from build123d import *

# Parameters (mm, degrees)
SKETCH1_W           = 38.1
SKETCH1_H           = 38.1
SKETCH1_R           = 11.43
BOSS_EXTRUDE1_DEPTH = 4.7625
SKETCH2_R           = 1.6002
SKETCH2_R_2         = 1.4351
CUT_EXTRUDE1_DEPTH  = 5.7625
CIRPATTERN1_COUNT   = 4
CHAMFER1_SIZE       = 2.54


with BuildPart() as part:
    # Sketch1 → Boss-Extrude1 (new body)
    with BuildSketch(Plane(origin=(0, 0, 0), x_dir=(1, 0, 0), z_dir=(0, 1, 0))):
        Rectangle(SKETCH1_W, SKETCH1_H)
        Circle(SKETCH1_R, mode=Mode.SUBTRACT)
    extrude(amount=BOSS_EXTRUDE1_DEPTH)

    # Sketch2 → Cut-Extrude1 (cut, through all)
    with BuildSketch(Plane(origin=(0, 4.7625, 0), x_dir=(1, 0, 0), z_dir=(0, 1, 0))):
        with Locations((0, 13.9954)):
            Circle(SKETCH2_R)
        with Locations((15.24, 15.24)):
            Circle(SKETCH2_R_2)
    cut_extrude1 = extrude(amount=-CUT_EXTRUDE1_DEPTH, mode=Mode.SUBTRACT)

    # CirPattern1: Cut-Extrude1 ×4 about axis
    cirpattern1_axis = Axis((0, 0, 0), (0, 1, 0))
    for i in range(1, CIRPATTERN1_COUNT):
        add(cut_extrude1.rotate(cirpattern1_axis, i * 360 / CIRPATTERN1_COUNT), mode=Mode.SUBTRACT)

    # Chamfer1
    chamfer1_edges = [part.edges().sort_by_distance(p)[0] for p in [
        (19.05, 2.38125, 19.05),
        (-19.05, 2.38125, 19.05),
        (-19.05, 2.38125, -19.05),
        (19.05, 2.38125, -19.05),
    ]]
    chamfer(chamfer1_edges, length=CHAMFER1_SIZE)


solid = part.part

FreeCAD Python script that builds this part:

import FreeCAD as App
import Part
import Sketcher
Q = App.Units.Quantity


def edges_at(feature, points):
    """Names of the edges that pass closest to the given points."""
    edges = feature.Shape.Edges
    near = lambda p: min(range(len(edges)), key=lambda i: edges[i].distToShape(Part.Vertex(*p))[0])
    return sorted({f"Edge{near(p) + 1}" for p in points})


def add_polygon(sketch, points):
    """Adds a closed chain of lines whose ends are joined by coincident constraints."""
    first, n = sketch.GeometryCount, len(points)
    for a, b in zip(points, points[1:] + points[:1]):
        sketch.addGeometry(Part.LineSegment(App.Vector(*a, 0), App.Vector(*b, 0)), False)
    for i in range(n):
        sketch.addConstraint(Sketcher.Constraint("Coincident", first + i, 2, first + (i + 1) % n, 1))

doc = App.newDocument("Part")
body = doc.addObject("PartDesign::Body", "Body")

sketch1 = body.newObject("Sketcher::SketchObject", "Sketch")
sketch1.AttachmentSupport = (doc.getObject("XZ_Plane"), [""])
sketch1.MapMode = "FlatFace"
add_polygon(sketch1, [(-19, -19), (-19, 19), (19, 19), (19, -19)])
sketch1.addGeometry(Part.Circle(App.Vector(0, 0, 0), App.Vector(0, 0, 1), 11), False)
sketch1.addConstraint(Sketcher.Constraint("Vertical", 0))
sketch1.addConstraint(Sketcher.Constraint("Horizontal", 1))
sketch1.addConstraint(Sketcher.Constraint("Vertical", 2))
sketch1.addConstraint(Sketcher.Constraint("Horizontal", 3))
sketch1.addConstraint(Sketcher.Constraint("Coincident", 4, 3, -1, 1))
sketch1.addConstraint(Sketcher.Constraint("Symmetric", 0, 2, 2, 2, -1, 1))
sketch1.addConstraint(Sketcher.Constraint("Equal", 3, 0))
sketch1.addConstraint(Sketcher.Constraint("Diameter", 4, Q("0.9 in")))
sketch1.addConstraint(Sketcher.Constraint("DistanceX", 1, 1, 1, 2, Q("1.5 in")))
pad1 = body.newObject("PartDesign::Pad", "Pad")
pad1.Profile = sketch1
pad1.Length = Q("0.1875 in")
pad1.Reversed = True

sketch2 = body.newObject("Sketcher::SketchObject", "Sketch001")
sketch2.AttachmentSupport = (doc.getObject("XZ_Plane"), [""])
sketch2.MapMode = "FlatFace"
sketch2.AttachmentOffset = App.Placement(App.Vector(0, 0, -0.1875 * 25.4), App.Rotation())
sketch2.addGeometry(Part.Circle(App.Vector(0, -14, 0), App.Vector(0, 0, 1), 1.6), False)
sketch2.addGeometry(Part.Circle(App.Vector(15.2, -15.2, 0), App.Vector(0, 0, 1), 1.4), False)
sketch2.addConstraint(Sketcher.Constraint("PointOnObject", 0, 3, -2))
sketch2.addConstraint(Sketcher.Constraint("Diameter", 0, Q("0.126 in")))
sketch2.addConstraint(Sketcher.Constraint("Diameter", 1, Q("0.113 in")))
sketch2.addConstraint(Sketcher.Constraint("DistanceX", -1, 1, 1, 3, Q("0.6 in")))
sketch2.addConstraint(Sketcher.Constraint("DistanceY", 1, 3, -1, 1, Q("0.6 in")))
sketch2.addConstraint(Sketcher.Constraint("DistanceY", 0, 3, -1, 1, Q("0.551 in")))
pocket1 = body.newObject("PartDesign::Pocket", "Pocket")
pocket1.Profile = sketch2
pocket1.Type = "ThroughAll"
pocket1.Reversed = True
doc.recompute()

polarpattern = body.newObject("PartDesign::PolarPattern", "PolarPattern")
polarpattern.Originals = [pocket1]
polarpattern.Axis = (doc.getObject("Y_Axis"), [""])
polarpattern.Angle = 360
polarpattern.Occurrences = 4
body.Tip = polarpattern
doc.recompute()

chamfer = body.newObject("PartDesign::Chamfer", "Chamfer")
chamfer.Base = (polarpattern, edges_at(polarpattern, [
    (19.05, 2.381, 19.05),
    (-19.05, 2.381, 19.05),
    (-19.05, 2.381, -19.05),
    (19.05, 2.381, -19.05),
]))
chamfer.Size = Q("0.1 in")

doc.recompute()
